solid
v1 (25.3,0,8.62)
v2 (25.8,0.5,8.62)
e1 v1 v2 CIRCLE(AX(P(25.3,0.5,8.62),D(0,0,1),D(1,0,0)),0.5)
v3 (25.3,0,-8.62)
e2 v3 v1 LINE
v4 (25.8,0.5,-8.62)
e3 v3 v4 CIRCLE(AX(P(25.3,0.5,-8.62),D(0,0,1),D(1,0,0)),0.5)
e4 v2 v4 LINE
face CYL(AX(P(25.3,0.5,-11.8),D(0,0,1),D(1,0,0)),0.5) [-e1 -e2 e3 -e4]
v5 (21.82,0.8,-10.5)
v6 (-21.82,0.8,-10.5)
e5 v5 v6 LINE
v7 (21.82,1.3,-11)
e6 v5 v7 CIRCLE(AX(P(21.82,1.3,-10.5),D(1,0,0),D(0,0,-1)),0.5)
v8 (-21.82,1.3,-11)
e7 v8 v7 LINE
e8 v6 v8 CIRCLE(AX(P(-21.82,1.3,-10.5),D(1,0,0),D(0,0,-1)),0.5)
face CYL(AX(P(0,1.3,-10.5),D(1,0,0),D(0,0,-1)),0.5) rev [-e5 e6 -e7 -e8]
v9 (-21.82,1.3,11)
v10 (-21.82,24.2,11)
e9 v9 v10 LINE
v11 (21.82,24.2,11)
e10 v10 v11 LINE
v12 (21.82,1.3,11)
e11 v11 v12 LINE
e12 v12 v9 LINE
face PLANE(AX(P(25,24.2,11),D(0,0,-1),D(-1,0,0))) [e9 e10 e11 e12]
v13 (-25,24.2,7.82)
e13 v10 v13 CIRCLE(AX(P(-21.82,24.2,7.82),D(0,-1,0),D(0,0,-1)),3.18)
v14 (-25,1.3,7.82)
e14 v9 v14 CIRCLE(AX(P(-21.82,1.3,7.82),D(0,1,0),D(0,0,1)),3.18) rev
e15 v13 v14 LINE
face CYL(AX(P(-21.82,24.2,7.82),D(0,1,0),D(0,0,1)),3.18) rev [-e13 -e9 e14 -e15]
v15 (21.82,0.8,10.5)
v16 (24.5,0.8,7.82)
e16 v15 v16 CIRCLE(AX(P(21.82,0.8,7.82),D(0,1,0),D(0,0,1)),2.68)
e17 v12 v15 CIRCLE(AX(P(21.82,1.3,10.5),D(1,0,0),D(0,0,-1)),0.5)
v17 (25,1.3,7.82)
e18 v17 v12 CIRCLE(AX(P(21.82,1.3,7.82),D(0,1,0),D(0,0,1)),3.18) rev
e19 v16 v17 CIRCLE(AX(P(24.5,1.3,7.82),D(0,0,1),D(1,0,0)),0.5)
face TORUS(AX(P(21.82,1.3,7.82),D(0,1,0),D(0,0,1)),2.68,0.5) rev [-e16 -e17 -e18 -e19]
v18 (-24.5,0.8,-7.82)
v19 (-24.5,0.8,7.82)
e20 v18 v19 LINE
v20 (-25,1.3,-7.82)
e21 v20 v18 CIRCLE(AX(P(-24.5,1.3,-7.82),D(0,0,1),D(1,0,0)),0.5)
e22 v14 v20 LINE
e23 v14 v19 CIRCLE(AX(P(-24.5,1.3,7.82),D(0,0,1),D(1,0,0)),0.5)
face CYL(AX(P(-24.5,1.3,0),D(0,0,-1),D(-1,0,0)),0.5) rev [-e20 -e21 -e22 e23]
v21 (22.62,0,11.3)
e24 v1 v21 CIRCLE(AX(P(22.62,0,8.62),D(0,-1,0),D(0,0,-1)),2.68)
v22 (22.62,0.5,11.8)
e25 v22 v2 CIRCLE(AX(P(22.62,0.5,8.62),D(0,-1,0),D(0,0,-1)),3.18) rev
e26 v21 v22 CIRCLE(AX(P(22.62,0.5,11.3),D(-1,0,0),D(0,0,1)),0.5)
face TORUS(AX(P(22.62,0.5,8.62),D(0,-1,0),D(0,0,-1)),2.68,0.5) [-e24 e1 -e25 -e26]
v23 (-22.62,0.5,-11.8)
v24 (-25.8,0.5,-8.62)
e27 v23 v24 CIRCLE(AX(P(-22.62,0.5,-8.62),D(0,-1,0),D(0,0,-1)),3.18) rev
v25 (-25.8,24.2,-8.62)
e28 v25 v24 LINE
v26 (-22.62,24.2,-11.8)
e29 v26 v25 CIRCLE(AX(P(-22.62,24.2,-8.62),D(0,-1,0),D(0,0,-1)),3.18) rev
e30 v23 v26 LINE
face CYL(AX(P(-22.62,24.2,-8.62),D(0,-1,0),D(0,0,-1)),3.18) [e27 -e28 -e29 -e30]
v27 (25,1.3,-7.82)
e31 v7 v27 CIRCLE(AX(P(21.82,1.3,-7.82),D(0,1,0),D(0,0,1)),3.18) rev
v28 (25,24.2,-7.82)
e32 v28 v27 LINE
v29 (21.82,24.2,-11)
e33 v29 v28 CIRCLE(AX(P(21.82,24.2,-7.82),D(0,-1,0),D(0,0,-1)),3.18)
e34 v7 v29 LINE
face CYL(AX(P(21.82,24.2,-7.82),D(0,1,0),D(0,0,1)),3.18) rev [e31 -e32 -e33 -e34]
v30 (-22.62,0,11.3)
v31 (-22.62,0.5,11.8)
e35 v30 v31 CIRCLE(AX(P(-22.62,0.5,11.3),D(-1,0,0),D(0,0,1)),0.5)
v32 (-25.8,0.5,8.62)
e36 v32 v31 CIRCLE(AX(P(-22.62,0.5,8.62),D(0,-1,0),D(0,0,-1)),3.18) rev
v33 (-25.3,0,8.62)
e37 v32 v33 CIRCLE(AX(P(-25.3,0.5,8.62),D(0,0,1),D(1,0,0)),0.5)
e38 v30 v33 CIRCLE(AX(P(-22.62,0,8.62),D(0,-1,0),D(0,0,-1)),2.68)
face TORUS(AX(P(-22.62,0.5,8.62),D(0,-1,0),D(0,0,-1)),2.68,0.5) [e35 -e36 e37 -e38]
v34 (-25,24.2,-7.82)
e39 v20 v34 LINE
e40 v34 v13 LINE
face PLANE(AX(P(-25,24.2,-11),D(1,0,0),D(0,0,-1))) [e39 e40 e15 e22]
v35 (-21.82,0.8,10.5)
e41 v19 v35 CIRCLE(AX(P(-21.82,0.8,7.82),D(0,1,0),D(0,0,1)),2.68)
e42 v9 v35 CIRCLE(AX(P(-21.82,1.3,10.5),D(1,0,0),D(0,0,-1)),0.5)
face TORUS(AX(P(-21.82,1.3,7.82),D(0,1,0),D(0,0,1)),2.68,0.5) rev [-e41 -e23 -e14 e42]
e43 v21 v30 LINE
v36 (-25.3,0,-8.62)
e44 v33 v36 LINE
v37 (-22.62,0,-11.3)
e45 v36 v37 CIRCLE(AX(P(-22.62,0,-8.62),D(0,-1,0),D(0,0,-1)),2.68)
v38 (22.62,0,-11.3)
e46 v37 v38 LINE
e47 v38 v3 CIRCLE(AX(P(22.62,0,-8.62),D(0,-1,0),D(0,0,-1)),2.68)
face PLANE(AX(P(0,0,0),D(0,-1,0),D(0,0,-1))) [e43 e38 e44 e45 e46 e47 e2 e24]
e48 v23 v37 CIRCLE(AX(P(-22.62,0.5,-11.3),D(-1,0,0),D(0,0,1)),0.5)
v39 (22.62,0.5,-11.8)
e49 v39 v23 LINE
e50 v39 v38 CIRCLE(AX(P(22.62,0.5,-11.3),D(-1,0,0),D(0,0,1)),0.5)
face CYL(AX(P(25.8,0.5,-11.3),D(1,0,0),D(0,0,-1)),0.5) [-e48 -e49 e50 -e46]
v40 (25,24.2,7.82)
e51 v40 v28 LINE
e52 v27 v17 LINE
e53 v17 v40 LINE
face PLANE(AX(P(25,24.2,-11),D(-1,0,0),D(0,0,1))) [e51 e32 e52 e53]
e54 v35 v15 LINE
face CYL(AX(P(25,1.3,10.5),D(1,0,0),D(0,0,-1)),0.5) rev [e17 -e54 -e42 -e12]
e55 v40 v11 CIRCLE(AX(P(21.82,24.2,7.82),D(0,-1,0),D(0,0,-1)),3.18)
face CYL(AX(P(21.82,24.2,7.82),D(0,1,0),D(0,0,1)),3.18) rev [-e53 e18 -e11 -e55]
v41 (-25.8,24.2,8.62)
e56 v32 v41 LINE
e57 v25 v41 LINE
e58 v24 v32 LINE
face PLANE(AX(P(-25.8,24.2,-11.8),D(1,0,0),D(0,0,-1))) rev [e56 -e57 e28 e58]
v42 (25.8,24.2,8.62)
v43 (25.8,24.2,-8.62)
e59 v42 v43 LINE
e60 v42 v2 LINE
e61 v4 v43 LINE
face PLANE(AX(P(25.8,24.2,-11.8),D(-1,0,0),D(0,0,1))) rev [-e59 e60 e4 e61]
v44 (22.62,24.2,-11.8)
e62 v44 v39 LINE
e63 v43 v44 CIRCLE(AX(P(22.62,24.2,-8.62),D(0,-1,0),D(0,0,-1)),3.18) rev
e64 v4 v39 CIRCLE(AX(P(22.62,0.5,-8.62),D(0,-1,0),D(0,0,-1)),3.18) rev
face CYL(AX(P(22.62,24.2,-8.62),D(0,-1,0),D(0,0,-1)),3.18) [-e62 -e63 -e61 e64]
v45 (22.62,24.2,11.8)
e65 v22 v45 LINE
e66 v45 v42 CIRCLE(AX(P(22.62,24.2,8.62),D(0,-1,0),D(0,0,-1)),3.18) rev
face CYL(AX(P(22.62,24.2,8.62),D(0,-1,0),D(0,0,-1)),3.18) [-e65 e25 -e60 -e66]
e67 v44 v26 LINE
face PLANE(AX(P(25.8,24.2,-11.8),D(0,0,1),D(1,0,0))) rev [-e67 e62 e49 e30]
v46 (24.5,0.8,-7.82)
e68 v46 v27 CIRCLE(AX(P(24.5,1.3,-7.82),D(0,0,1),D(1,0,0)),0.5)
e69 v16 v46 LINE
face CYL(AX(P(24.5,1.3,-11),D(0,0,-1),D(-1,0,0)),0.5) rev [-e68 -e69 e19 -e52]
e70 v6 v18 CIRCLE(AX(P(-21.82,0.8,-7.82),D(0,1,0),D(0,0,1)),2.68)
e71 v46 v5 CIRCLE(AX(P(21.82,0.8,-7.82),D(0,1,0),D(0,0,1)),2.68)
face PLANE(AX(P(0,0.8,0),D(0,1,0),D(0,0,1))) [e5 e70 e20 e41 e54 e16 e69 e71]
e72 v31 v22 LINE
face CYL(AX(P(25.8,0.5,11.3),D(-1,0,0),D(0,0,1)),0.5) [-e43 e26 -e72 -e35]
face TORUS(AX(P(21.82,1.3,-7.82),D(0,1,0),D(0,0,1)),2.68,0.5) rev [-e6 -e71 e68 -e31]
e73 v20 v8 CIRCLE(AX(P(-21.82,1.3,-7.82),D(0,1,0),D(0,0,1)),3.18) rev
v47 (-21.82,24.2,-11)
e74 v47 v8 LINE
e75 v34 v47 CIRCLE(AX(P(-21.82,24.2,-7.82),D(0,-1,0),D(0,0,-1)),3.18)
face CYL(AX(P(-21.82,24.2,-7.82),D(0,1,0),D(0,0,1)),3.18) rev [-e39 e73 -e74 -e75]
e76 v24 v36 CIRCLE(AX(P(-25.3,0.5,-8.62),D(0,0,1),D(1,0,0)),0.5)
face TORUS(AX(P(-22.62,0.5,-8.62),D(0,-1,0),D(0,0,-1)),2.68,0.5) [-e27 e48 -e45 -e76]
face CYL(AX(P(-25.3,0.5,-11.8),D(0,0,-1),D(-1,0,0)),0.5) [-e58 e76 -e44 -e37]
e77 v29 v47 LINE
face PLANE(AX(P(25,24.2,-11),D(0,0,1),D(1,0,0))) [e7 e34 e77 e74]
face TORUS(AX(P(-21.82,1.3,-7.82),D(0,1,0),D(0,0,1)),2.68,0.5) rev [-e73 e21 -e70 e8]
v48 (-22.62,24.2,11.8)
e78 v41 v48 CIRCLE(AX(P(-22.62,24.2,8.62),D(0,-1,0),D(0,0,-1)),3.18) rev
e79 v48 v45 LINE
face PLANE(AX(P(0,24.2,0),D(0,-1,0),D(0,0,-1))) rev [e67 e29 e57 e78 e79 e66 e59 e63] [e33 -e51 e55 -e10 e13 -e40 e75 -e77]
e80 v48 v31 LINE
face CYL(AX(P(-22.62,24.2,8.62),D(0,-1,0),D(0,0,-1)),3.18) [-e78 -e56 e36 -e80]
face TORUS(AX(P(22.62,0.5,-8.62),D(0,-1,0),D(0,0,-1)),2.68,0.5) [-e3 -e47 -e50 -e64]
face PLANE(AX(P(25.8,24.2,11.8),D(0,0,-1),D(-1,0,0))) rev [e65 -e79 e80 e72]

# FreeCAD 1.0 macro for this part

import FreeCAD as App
import Part
import Sketcher

V = App.Vector
Q = App.Units.Quantity


def edges_at(feature, points):
    """Names of the edges that pass closest to the given points."""
    edges = feature.Shape.Edges
    near = lambda p: min(range(len(edges)), key=lambda i: edges[i].distToShape(Part.Vertex(*p))[0])
    return sorted({f"Edge{near(p) + 1}" for p in points})


def add_polygon(sketch, points):
    """Adds a closed chain of lines whose ends are joined by coincident constraints."""
    first, n = sketch.GeometryCount, len(points)
    for a, b in zip(points, points[1:] + points[:1]):
        sketch.addGeometry(Part.LineSegment(App.Vector(*a, 0), App.Vector(*b, 0)), False)
    for i in range(n):
        sketch.addConstraint(Sketcher.Constraint("Coincident", first + i, 2, first + (i + 1) % n, 1))

doc = App.newDocument("Part")
body = doc.addObject("PartDesign::Body", "Body")

# Sketch on XZ plane
sketch1 = body.newObject("Sketcher::SketchObject", "Sketch")
sketch1.AttachmentSupport = (doc.getObject("XZ_Plane"), [""])
sketch1.MapMode = "FlatFace"
add_polygon(sketch1, [(-26, -12), (-26, 12), (26, 12), (26, -12)])  # lines 0-3
add_polygon(sketch1, [(25, 11), (-25, 11), (-25, -11), (25, -11)])  # lines 4-7
sketch1.addConstraint([
    Sketcher.Constraint("Vertical", 0),
    Sketcher.Constraint("Horizontal", 1),
    Sketcher.Constraint("Vertical", 2),
    Sketcher.Constraint("Horizontal", 3),
    Sketcher.Constraint("Horizontal", 4),
    Sketcher.Constraint("Vertical", 5),
    Sketcher.Constraint("Horizontal", 6),
    Sketcher.Constraint("Vertical", 7),
    Sketcher.Constraint("Symmetric", 0, 2, 2, 2, -1, 1),
    Sketcher.Constraint("Symmetric", 4, 2, 6, 2, -1, 1),
    Sketcher.Constraint("DistanceX", 4, 2, 4, 1, Q("50 mm")),
    Sketcher.Constraint("DistanceY", 5, 2, 5, 1, Q("22 mm")),
    Sketcher.Constraint("DistanceX", 1, 1, 1, 2, Q("51.6 mm")),
    Sketcher.Constraint("DistanceY", 0, 1, 0, 2, Q("23.6 mm")),
])
pad1 = body.newObject("PartDesign::Pad", "Pad")
pad1.Profile = sketch1
pad1.Length = 24.2
pad1.Reversed = True

# Sketch on XZ plane
sketch2 = body.newObject("Sketcher::SketchObject", "Sketch001")
sketch2.AttachmentSupport = (doc.getObject("XZ_Plane"), [""])
sketch2.MapMode = "FlatFace"
add_polygon(sketch2, [(-25, -11), (-25, 11), (25, 11), (25, -11)])  # lines 0-3
sketch2.addConstraint([
    Sketcher.Constraint("Vertical", 0),
    Sketcher.Constraint("Horizontal", 1),
    Sketcher.Constraint("Vertical", 2),
    Sketcher.Constraint("Horizontal", 3),
    Sketcher.Constraint("Symmetric", 0, 2, 2, 2, -1, 1),
    Sketcher.Constraint("DistanceX", 1, 1, 1, 2, Q("50 mm")),
    Sketcher.Constraint("DistanceY", 0, 1, 0, 2, Q("22 mm")),
])
pad2 = body.newObject("PartDesign::Pad", "Pad001")
pad2.Profile = sketch2
pad2.Length = 0.8
pad2.Reversed = True
doc.recompute()

fillet = body.newObject("PartDesign::Fillet", "Fillet")
fillet.Base = (pad2, edges_at(pad2, [
    (-25, 12.5, -11),
    (-25, 12.5, 11),
    (25, 12.5, 11),
    (25, 12.5, -11),
    (25.8, 12.1, 11.8),
    (-25.8, 12.1, 11.8),
    (-25.8, 12.1, -11.8),
    (25.8, 12.1, -11.8),
]))
fillet.Radius = 3.18
doc.recompute()

fillet2 = body.newObject("PartDesign::Fillet", "Fillet001")
fillet2.Base = (fillet, edges_at(fillet, [
    (25.8, 0, 0),
    (0, 0, 11.8),
    (-25.8, 0, 0),
    (0, 0, -11.8),
    (-24.869, 0, -10.869),
    (-24.869, 0, 10.869),
    (24.869, 0, -10.869),
    (24.869, 0, 10.869),
    (25, 0.8, 0),
    (0, 0.8, -11),
    (-25, 0.8, 0),
    (0, 0.8, 11),
    (24.069, 0.8, 10.069),
    (-24.069, 0.8, -10.069),
    (-24.069, 0.8, 10.069),
    (24.069, 0.8, -10.069),
]))
fillet2.Radius = 0.5

doc.recompute()
